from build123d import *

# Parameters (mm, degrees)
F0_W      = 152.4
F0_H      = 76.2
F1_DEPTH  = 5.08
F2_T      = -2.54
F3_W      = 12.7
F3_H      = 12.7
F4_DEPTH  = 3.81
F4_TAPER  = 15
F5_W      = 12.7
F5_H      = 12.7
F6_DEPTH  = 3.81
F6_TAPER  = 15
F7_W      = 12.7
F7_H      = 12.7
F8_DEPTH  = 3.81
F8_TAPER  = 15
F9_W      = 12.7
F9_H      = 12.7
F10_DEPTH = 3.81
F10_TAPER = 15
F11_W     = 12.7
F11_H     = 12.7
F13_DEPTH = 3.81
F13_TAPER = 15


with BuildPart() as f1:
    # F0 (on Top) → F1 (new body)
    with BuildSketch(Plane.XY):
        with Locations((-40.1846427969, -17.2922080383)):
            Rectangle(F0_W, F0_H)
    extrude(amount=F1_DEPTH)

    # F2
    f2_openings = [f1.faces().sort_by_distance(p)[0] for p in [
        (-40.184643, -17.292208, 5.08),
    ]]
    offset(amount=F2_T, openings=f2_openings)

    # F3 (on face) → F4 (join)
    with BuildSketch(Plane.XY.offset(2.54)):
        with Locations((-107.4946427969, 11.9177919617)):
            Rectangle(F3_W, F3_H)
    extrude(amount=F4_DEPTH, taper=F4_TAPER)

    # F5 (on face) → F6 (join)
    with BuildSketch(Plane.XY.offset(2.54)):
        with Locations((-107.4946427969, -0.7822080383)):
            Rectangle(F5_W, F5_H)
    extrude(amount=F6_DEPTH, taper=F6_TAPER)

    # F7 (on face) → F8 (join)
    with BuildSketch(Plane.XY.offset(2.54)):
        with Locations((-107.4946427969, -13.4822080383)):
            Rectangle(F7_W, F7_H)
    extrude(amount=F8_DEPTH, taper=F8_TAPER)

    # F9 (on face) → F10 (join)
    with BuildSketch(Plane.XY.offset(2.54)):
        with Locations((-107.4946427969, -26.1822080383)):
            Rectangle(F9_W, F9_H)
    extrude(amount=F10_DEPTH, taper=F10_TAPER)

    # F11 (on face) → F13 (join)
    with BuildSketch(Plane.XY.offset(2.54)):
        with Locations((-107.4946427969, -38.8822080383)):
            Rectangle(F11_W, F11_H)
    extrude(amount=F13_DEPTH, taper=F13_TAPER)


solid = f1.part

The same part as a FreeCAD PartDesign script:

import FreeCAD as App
import Part
import Sketcher
from FreeCAD import Vector
Q = App.Units.Quantity


def faces_at(feature, points):
    """Names of the faces that lie closest to the given points."""
    faces = feature.Shape.Faces
    near = lambda p: min(range(len(faces)), key=lambda i: faces[i].distToShape(Part.Vertex(*p))[0])
    return sorted({f"Face{near(p) + 1}" for p in points})


def add_polygon(sketch, points):
    """Adds a closed chain of lines whose ends are joined by coincident constraints."""
    first, n = sketch.GeometryCount, len(points)
    for a, b in zip(points, points[1:] + points[:1]):
        sketch.addGeometry(Part.LineSegment(App.Vector(*a, 0), App.Vector(*b, 0)), False)
    for i in range(n):
        sketch.addConstraint(Sketcher.Constraint("Coincident", first + i, 2, first + (i + 1) % n, 1))

doc = App.newDocument("Part")
params = doc.addObject("Spreadsheet::Sheet", "Params")
for row, (alias, value) in enumerate([
    ("sketch1_width", "6 in"),
    ("sketch1_height", "3 in"),
    ("pad1_length", "0.2 in"),
    ("thickness_wall", "0.1 in"),
    ("sketch2_width", "0.5 in"),
    ("pad2_length", "0.15 in"),
    ("pad2_taper", "-15 deg"),
    ("sketch3_width", "0.5 in"),
    ("pad3_length", "0.15 in"),
    ("pad3_taper", "-15 deg"),
    ("sketch4_width", "0.5 in"),
    ("pad4_length", "0.15 in"),
    ("pad4_taper", "-15 deg"),
    ("sketch5_width", "0.5 in"),
    ("pad5_length", "0.15 in"),
    ("pad5_taper", "-15 deg"),
    ("sketch6_width", "0.5 in"),
    ("pad6_length", "0.15 in"),
    ("pad6_taper", "-15 deg"),
], start=1):
    params.set(f"A{row}", alias)
    params.set(f"B{row}", "=" + value)
    params.setAlias(f"B{row}", alias)

body = doc.addObject("PartDesign::Body", "Body")

sketch1 = body.newObject("Sketcher::SketchObject", "Sketch")
sketch1.AttachmentSupport = (doc.getObject("XY_Plane"), [""])
sketch1.MapMode = "FlatFace"
add_polygon(sketch1, [(-116, 21), (-116, -55), (36, -55), (36, 21)])
sketch1.addConstraint([
    Sketcher.Constraint("Vertical", 0),
    Sketcher.Constraint("Horizontal", 1),
    Sketcher.Constraint("Vertical", 2),
    Sketcher.Constraint("Horizontal", 3),
    Sketcher.Constraint("DistanceX", 1, 1, 1, 2, Q("6 in")),
    Sketcher.Constraint("DistanceY", 0, 2, 0, 1, Q("3 in")),
    Sketcher.Constraint("DistanceY", 0, 2, -1, 1, Q("55.392208 mm")),
    Sketcher.Constraint("DistanceX", 0, 2, -1, 1, Q("116.384643 mm")),
])
sketch1.setExpression("Constraints[8]", "Params.sketch1_width")
sketch1.setExpression("Constraints[9]", "Params.sketch1_height")
pad1 = body.newObject("PartDesign::Pad", "Pad")
pad1.Profile = sketch1
pad1.setExpression("Length", "Params.pad1_length")
doc.recompute()

thickness = body.newObject("PartDesign::Thickness", "Thickness")
thickness.Base = (pad1, faces_at(pad1, [(-40.185, -17.292, 5.08)]))
thickness.setExpression("Value", "Params.thickness_wall")
thickness.Reversed = True
thickness.Join = "Arc"

sketch2 = body.newObject("Sketcher::SketchObject", "Sketch001")
sketch2.AttachmentSupport = (doc.getObject("XY_Plane"), [""])
sketch2.MapMode = "FlatFace"
sketch2.AttachmentOffset = App.Placement(Vector(0, 0, 0.1 * 25.4), App.Rotation())
add_polygon(sketch2, [(-114, 18), (-114, 6), (-101, 6), (-101, 18)])
sketch2.addConstraint([
    Sketcher.Constraint("Vertical", 0),
    Sketcher.Constraint("Horizontal", 1),
    Sketcher.Constraint("Vertical", 2),
    Sketcher.Constraint("Horizontal", 3),
    Sketcher.Constraint("Equal", 3, 0),
    Sketcher.Constraint("DistanceX", 1, 1, 1, 2, Q("0.5 in")),
    Sketcher.Constraint("DistanceY", -1, 1, 0, 2, Q("5.567792 mm")),
    Sketcher.Constraint("DistanceX", 0, 2, -1, 1, Q("113.844643 mm")),
])
sketch2.setExpression("Constraints[9]", "Params.sketch2_width")
pad2 = body.newObject("PartDesign::Pad", "Pad001")
pad2.Profile = sketch2
pad2.setExpression("Length", "Params.pad2_length")
pad2.setExpression("TaperAngle", "Params.pad2_taper")

sketch3 = body.newObject("Sketcher::SketchObject", "Sketch002")
sketch3.AttachmentSupport = (doc.getObject("XY_Plane"), [""])
sketch3.MapMode = "FlatFace"
sketch3.AttachmentOffset = App.Placement(Vector(0, 0, 0.1 * 25.4), App.Rotation())
add_polygon(sketch3, [(-114, 6), (-114, -7), (-101, -7), (-101, 6)])
sketch3.addConstraint([
    Sketcher.Constraint("Vertical", 0),
    Sketcher.Constraint("Horizontal", 1),
    Sketcher.Constraint("Vertical", 2),
    Sketcher.Constraint("Horizontal", 3),
    Sketcher.Constraint("Equal", 3, 0),
    Sketcher.Constraint("DistanceX", 1, 1, 1, 2, Q("0.5 in")),
    Sketcher.Constraint("DistanceY", 0, 2, -1, 1, Q("7.132208 mm")),
    Sketcher.Constraint("DistanceX", 0, 2, -1, 1, Q("113.844643 mm")),
])
sketch3.setExpression("Constraints[9]", "Params.sketch3_width")
pad3 = body.newObject("PartDesign::Pad", "Pad002")
pad3.Profile = sketch3
pad3.setExpression("Length", "Params.pad3_length")
pad3.setExpression("TaperAngle", "Params.pad3_taper")

sketch4 = body.newObject("Sketcher::SketchObject", "Sketch003")
sketch4.AttachmentSupport = (doc.getObject("XY_Plane"), [""])
sketch4.MapMode = "FlatFace"
sketch4.AttachmentOffset = App.Placement(Vector(0, 0, 0.1 * 25.4), App.Rotation())
add_polygon(sketch4, [(-114, -7), (-114, -20), (-101, -20), (-101, -7)])
sketch4.addConstraint([
    Sketcher.Constraint("Vertical", 0),
    Sketcher.Constraint("Horizontal", 1),
    Sketcher.Constraint("Vertical", 2),
    Sketcher.Constraint("Horizontal", 3),
    Sketcher.Constraint("Equal", 3, 0),
    Sketcher.Constraint("DistanceX", 1, 1, 1, 2, Q("0.5 in")),
    Sketcher.Constraint("DistanceY", 0, 2, -1, 1, Q("19.832208 mm")),
    Sketcher.Constraint("DistanceX", 0, 2, -1, 1, Q("113.844643 mm")),
])
sketch4.setExpression("Constraints[9]", "Params.sketch4_width")
pad4 = body.newObject("PartDesign::Pad", "Pad003")
pad4.Profile = sketch4
pad4.setExpression("Length", "Params.pad4_length")
pad4.setExpression("TaperAngle", "Params.pad4_taper")

sketch5 = body.newObject("Sketcher::SketchObject", "Sketch004")
sketch5.AttachmentSupport = (doc.getObject("XY_Plane"), [""])
sketch5.MapMode = "FlatFace"
sketch5.AttachmentOffset = App.Placement(Vector(0, 0, 0.1 * 25.4), App.Rotation())
add_polygon(sketch5, [(-114, -20), (-114, -33), (-101, -33), (-101, -20)])
sketch5.addConstraint([
    Sketcher.Constraint("Vertical", 0),
    Sketcher.Constraint("Horizontal", 1),
    Sketcher.Constraint("Vertical", 2),
    Sketcher.Constraint("Horizontal", 3),
    Sketcher.Constraint("Equal", 3, 0),
    Sketcher.Constraint("DistanceX", 1, 1, 1, 2, Q("0.5 in")),
    Sketcher.Constraint("DistanceY", 0, 2, -1, 1, Q("32.532208 mm")),
    Sketcher.Constraint("DistanceX", 0, 2, -1, 1, Q("113.844643 mm")),
])
sketch5.setExpression("Constraints[9]", "Params.sketch5_width")
pad5 = body.newObject("PartDesign::Pad", "Pad004")
pad5.Profile = sketch5
pad5.setExpression("Length", "Params.pad5_length")
pad5.setExpression("TaperAngle", "Params.pad5_taper")

sketch6 = body.newObject("Sketcher::SketchObject", "Sketch005")
sketch6.AttachmentSupport = (doc.getObject("XY_Plane"), [""])
sketch6.MapMode = "FlatFace"
sketch6.AttachmentOffset = App.Placement(Vector(0, 0, 0.1 * 25.4), App.Rotation())
add_polygon(sketch6, [(-114, -33), (-114, -45), (-101, -45), (-101, -33)])
sketch6.addConstraint([
    Sketcher.Constraint("Vertical", 0),
    Sketcher.Constraint("Horizontal", 1),
    Sketcher.Constraint("Vertical", 2),
    Sketcher.Constraint("Horizontal", 3),
    Sketcher.Constraint("Equal", 3, 0),
    Sketcher.Constraint("DistanceX", 1, 1, 1, 2, Q("0.5 in")),
    Sketcher.Constraint("DistanceY", 0, 2, -1, 1, Q("45.232208 mm")),
    Sketcher.Constraint("DistanceX", 0, 2, -1, 1, Q("113.844643 mm")),
])
sketch6.setExpression("Constraints[9]", "Params.sketch6_width")
pad6 = body.newObject("PartDesign::Pad", "Pad005")
pad6.Profile = sketch6
pad6.setExpression("Length", "Params.pad6_length")
pad6.setExpression("TaperAngle", "Params.pad6_taper")

doc.recompute()
